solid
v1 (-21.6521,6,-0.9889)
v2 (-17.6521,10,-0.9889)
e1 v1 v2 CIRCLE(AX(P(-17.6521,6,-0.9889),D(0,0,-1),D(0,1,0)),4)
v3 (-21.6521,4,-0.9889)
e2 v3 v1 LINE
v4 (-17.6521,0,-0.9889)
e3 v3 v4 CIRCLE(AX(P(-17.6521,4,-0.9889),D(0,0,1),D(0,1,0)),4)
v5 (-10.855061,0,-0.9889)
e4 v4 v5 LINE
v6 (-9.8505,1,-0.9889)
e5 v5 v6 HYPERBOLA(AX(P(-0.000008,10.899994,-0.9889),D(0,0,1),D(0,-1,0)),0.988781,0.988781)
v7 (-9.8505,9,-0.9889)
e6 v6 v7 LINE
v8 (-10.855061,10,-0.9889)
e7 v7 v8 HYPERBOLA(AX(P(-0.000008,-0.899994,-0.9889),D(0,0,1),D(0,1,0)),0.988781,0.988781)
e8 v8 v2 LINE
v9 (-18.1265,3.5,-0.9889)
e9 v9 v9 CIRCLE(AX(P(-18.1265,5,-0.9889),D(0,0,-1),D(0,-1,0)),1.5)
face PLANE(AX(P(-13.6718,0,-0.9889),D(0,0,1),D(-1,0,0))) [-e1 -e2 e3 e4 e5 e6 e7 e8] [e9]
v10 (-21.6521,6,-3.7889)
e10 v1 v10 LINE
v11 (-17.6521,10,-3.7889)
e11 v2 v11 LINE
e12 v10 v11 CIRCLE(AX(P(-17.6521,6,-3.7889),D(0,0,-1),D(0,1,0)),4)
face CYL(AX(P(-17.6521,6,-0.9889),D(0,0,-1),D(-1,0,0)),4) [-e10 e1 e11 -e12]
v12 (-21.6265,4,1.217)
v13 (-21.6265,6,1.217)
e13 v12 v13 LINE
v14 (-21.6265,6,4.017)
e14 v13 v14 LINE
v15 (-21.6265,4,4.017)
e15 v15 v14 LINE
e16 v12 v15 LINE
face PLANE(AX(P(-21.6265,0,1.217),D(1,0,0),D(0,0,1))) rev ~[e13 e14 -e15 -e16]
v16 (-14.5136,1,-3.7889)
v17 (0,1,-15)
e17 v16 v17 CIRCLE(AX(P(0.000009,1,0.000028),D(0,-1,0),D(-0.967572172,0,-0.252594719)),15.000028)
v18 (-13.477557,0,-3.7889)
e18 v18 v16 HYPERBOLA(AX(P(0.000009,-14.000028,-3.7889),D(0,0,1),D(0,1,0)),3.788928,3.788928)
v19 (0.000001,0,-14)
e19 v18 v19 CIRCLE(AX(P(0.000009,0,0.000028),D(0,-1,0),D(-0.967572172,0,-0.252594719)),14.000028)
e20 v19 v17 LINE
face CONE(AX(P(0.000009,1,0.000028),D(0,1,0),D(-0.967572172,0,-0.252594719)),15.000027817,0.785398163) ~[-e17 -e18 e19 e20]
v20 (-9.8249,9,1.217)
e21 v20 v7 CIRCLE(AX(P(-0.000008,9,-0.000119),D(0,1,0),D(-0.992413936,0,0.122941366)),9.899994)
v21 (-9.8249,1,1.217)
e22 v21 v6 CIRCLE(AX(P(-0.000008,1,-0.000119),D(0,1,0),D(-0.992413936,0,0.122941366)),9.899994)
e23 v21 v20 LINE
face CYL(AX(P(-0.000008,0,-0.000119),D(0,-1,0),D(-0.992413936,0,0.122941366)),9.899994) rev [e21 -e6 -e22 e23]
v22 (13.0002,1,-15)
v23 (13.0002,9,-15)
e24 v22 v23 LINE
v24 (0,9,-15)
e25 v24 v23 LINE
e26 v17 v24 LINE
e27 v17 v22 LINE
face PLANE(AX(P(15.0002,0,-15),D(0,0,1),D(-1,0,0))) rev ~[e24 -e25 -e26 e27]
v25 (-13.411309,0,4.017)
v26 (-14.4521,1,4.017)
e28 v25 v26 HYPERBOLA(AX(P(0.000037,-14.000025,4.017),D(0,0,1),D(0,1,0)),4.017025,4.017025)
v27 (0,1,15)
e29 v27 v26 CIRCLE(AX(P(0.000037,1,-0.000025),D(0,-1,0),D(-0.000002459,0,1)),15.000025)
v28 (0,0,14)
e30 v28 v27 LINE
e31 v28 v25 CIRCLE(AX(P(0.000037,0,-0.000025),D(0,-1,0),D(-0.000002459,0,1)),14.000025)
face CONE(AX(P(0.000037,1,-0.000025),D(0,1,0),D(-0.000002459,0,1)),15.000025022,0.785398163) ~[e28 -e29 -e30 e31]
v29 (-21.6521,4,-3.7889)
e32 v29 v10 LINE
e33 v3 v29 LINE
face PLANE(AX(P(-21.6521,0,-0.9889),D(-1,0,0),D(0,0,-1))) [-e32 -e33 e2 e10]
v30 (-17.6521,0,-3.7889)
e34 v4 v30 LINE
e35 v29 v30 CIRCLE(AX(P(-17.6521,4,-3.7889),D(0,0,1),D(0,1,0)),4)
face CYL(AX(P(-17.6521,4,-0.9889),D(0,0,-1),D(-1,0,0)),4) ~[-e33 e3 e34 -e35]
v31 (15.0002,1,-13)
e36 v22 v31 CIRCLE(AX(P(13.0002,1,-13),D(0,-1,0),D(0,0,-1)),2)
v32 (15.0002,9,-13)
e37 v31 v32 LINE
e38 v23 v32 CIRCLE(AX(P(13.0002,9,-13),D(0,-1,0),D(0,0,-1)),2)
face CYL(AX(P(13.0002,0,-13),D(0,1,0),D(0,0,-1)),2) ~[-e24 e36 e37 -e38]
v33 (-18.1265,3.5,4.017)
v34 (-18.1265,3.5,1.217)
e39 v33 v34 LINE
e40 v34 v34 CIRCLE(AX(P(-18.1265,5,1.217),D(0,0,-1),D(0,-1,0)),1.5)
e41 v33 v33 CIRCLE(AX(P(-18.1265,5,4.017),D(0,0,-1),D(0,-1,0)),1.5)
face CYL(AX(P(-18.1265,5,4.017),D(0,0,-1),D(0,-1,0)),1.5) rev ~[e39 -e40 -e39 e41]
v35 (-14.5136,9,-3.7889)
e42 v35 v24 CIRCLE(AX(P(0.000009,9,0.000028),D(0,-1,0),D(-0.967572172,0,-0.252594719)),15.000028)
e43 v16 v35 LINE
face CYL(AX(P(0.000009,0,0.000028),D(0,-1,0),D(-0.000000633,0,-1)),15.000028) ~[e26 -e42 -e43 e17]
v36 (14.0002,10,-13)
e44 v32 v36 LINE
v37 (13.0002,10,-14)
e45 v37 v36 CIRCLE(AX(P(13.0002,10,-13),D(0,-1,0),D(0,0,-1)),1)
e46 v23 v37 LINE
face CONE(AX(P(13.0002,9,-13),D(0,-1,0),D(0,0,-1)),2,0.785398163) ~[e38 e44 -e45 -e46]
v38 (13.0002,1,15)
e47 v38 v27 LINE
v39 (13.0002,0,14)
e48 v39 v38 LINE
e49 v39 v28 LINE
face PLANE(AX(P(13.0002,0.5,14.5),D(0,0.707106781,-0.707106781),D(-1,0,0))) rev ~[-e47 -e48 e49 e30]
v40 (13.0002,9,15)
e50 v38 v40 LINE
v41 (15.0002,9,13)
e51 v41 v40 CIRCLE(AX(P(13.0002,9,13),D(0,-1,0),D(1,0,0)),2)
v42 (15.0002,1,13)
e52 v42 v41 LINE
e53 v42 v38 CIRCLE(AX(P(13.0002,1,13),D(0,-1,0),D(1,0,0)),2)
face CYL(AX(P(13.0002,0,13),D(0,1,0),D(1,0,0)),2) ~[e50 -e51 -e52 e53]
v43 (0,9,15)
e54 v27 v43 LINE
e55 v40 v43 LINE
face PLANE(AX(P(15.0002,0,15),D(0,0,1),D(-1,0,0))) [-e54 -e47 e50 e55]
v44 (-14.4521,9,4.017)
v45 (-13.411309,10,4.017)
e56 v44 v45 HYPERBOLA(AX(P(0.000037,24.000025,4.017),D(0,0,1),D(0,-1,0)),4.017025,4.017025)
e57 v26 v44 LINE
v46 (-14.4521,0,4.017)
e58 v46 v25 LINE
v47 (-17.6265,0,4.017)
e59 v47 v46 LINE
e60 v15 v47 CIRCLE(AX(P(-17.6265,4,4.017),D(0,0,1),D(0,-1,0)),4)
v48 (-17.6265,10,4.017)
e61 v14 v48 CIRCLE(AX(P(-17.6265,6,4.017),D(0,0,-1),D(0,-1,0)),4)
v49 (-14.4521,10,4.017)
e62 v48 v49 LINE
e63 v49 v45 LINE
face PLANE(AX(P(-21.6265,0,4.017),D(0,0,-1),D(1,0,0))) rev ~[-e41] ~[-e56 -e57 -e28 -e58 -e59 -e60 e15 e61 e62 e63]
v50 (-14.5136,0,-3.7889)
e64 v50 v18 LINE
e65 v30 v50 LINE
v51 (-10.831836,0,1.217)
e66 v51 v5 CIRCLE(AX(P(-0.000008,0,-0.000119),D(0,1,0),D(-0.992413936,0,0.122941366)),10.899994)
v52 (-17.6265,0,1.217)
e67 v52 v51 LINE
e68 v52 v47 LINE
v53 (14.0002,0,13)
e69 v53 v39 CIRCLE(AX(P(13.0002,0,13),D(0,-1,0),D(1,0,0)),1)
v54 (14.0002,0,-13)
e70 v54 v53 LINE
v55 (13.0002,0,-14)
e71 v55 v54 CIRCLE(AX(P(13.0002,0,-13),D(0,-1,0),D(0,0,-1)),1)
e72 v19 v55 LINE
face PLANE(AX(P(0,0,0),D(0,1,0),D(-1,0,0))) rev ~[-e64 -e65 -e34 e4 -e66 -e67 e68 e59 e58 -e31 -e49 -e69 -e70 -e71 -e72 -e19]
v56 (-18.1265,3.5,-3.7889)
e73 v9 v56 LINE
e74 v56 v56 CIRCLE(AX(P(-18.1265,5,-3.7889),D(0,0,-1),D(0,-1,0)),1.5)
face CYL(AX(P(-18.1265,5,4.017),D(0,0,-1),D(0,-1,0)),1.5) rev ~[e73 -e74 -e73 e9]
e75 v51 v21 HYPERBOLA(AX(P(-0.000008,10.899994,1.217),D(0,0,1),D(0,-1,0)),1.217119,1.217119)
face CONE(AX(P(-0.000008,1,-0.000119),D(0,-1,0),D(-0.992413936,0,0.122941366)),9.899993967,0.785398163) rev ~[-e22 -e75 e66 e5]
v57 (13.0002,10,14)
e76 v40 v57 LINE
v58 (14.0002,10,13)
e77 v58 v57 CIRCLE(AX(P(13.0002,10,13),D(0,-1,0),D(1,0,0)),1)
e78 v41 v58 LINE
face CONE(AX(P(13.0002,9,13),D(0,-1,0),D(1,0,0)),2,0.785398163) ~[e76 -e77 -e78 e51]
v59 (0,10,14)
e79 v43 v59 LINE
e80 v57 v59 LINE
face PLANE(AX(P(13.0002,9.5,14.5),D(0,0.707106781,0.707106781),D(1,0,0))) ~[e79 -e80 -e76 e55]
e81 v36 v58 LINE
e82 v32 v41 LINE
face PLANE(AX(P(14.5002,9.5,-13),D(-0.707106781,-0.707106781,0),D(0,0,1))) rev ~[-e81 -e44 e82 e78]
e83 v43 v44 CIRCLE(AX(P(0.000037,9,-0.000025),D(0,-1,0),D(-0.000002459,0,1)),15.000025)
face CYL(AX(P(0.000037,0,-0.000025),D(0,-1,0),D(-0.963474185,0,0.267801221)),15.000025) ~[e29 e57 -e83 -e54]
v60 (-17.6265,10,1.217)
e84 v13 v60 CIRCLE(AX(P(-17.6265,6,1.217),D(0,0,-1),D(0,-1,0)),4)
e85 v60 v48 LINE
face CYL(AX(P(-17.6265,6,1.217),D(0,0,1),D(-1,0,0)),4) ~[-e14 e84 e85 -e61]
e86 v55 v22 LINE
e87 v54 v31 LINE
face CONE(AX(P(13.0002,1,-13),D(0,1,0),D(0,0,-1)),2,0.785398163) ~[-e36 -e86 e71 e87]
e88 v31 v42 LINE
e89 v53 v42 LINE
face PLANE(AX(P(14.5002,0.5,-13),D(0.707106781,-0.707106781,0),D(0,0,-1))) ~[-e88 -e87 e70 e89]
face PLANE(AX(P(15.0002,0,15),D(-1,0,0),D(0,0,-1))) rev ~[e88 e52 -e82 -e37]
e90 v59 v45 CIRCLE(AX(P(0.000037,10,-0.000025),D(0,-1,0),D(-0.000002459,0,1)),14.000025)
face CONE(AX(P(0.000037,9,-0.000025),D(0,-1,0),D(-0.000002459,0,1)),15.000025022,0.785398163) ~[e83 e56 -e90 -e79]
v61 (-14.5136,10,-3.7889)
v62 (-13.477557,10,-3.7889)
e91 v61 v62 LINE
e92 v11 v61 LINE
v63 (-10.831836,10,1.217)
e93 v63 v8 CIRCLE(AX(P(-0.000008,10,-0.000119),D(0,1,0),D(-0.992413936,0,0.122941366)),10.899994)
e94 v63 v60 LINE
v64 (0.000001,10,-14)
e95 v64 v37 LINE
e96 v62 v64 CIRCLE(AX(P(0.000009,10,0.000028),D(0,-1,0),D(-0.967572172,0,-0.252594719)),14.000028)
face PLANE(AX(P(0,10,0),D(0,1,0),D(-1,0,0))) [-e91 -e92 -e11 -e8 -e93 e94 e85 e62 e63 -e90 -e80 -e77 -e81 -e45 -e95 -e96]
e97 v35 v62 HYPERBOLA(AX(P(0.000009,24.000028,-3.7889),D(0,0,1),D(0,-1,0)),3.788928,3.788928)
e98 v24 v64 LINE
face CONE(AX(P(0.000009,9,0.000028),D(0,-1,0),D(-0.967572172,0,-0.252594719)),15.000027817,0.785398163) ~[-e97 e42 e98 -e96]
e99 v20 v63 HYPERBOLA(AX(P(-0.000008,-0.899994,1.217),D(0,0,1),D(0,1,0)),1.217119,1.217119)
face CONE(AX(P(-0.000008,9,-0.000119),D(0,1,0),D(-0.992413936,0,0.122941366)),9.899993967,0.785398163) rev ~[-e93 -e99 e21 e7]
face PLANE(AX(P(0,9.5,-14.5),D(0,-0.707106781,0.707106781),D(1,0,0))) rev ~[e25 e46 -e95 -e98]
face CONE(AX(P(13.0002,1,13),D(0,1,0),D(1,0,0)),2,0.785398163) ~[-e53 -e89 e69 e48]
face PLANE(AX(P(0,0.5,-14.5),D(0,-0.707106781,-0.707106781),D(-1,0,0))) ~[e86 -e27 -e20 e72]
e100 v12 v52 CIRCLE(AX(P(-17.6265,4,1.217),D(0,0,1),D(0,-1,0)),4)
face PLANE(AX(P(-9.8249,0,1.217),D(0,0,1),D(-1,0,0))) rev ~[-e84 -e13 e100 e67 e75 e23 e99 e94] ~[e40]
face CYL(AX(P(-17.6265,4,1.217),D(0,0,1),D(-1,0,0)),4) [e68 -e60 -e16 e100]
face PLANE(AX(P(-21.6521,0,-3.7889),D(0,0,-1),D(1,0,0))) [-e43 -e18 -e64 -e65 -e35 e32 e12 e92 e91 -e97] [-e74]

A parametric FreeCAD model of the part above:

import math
import FreeCAD as App
import Part
import Sketcher

V = App.Vector
Q = App.Units.Quantity


def edges_at(feature, points):
    """Names of the edges that pass closest to the given points."""
    edges = feature.Shape.Edges
    near = lambda p: min(range(len(edges)), key=lambda i: edges[i].distToShape(Part.Vertex(*p))[0])
    return sorted({f"Edge{near(p) + 1}" for p in points})

doc = App.newDocument("Part")
body = doc.addObject("PartDesign::Body", "Body")

# Sketch on XZ plane
sketch1 = body.newObject("Sketcher::SketchObject", "Sketch")
sketch1.AttachmentSupport = (doc.getObject("XZ_Plane"), [""])
sketch1.MapMode = "FlatFace"
sketch1.addGeometry([
    Part.ArcOfCircle(Part.Circle(V(0, 0, 0), V(0, 0, 1), 9.9), math.radians(-174), math.radians(173)),  # 0
    Part.LineSegment(V(-9.8, 1.2, 0), V(-21.6, 1.2, 0)),  # 1
    Part.LineSegment(V(-21.6, 1.2, 0), V(-21.6, 4, 0)),  # 2
    Part.LineSegment(V(-21.6, 4, 0), V(-14.5, 4, 0)),  # 3
    Part.ArcOfCircle(Part.Circle(V(0, 0, 0), V(0, 0, 1), 15), math.radians(90), math.radians(164)),  # 4
    Part.LineSegment(V(0, 15, 0), V(15, 15, 0)),  # 5
    Part.LineSegment(V(15, 15, 0), V(15, -15, 0)),  # 6
    Part.LineSegment(V(15, -15, 0), V(0, -15, 0)),  # 7
    Part.ArcOfCircle(Part.Circle(V(0, 0, 0), V(0, 0, 1), 15), math.radians(-165), math.radians(-90)),  # 8
    Part.LineSegment(V(-14.5, -3.8, 0), V(-21.7, -3.8, 0)),  # 9
    Part.LineSegment(V(-21.7, -3.8, 0), V(-21.7, -1, 0)),  # 10
    Part.LineSegment(V(-21.7, -1, 0), V(-9.9, -1, 0)),  # 11
], False)
sketch1.addConstraint([
    Sketcher.Constraint("Coincident", 0, 2, 1, 1),
    Sketcher.Constraint("Coincident", 1, 2, 2, 1),
    Sketcher.Constraint("Coincident", 2, 2, 3, 1),
    Sketcher.Constraint("Coincident", 3, 2, 4, 2),
    Sketcher.Constraint("Tangent", 4, 1, 5, 1),
    Sketcher.Constraint("Coincident", 5, 2, 6, 1),
    Sketcher.Constraint("Coincident", 6, 2, 7, 1),
    Sketcher.Constraint("Tangent", 7, 2, 8, 2),
    Sketcher.Constraint("Coincident", 8, 1, 9, 1),
    Sketcher.Constraint("Coincident", 9, 2, 10, 1),
    Sketcher.Constraint("Coincident", 10, 2, 11, 1),
    Sketcher.Constraint("Coincident", 11, 2, 0, 1),
    Sketcher.Constraint("Horizontal", 1),
    Sketcher.Constraint("Vertical", 2),
    Sketcher.Constraint("Horizontal", 3),
    Sketcher.Constraint("Horizontal", 5),
    Sketcher.Constraint("Vertical", 6),
    Sketcher.Constraint("Horizontal", 7),
    Sketcher.Constraint("Horizontal", 9),
    Sketcher.Constraint("Vertical", 10),
    Sketcher.Constraint("Horizontal", 11),
    Sketcher.Constraint("Coincident", 0, 3, -1, 1),
    Sketcher.Constraint("Coincident", 4, 3, -1, 1),
    Sketcher.Constraint("Coincident", 8, 3, -1, 1),
    Sketcher.Constraint("Equal", 4, 8),
    Sketcher.Constraint("Equal", 1, 11),
    Sketcher.Constraint("Equal", 2, 10),
    Sketcher.Constraint("Radius", 4, Q("15 mm")),
    Sketcher.Constraint("Radius", 0, Q("9.9 mm")),
    Sketcher.Constraint("DistanceY", 2, 1, 2, 2, Q("2.8 mm")),
    Sketcher.Constraint("DistanceX", 9, 2, 3, 2, Q("7.2 mm")),
    Sketcher.Constraint("DistanceX", 1, 2, 1, 1, Q("11.8016 mm")),
    Sketcher.Constraint("DistanceX", 3, 1, 3, 2, Q("7.1744 mm")),
    Sketcher.Constraint("DistanceX", 5, 1, 5, 2, Q("15.0002 mm")),
])
pad1 = body.newObject("PartDesign::Pad", "Pad")
pad1.Profile = sketch1
pad1.Length = 10
pad1.Reversed = True
doc.recompute()

fillet = body.newObject("PartDesign::Fillet", "Fillet")
fillet.Base = (pad1, edges_at(pad1, [
    (-21.627, 10, 2.617),
    (-21.652, 10, -2.389),
    (-21.627, 0, 2.617),
    (-21.652, 0, -2.389),
]))
fillet.Radius = 4

# Sketch on XY plane
sketch2 = body.newObject("Sketcher::SketchObject", "Sketch001")
sketch2.AttachmentSupport = (doc.getObject("XY_Plane"), [""])
sketch2.MapMode = "FlatFace"
sketch2.AttachmentOffset = App.Placement(V(0, 0, 4.017), App.Rotation())
sketch2.addGeometry(Part.Circle(V(-18.1, 5, 0), V(0, 0, 1), 1.5), False)
sketch2.addConstraint([
    Sketcher.Constraint("Diameter", 0, Q("3 mm")),
    Sketcher.Constraint("DistanceY", -1, 1, 0, 3, Q("5 mm")),
    Sketcher.Constraint("DistanceX", 0, 3, -1, 1, Q("18.1265 mm")),
])
doc.recompute()
hole = body.newObject("PartDesign::Hole", "Hole")
hole.Profile = sketch2
hole.ThreadType = "None"
hole.Diameter = 3
hole.DepthType = "Dimension"
hole.Depth = 8
hole.DrillPoint = "Angled"
hole.DrillPointAngle = 118
doc.recompute()

fillet2 = body.newObject("PartDesign::Fillet", "Fillet001")
fillet2.Base = (hole, edges_at(hole, [(15, 5, 15), (15, 5, -15)]))
fillet2.Radius = 2
doc.recompute()

chamfer = body.newObject("PartDesign::Chamfer", "Chamfer")
chamfer.Base = (fillet2, edges_at(fillet2, [
    (9.899, 10, -0.115),
    (9.899, 0, -0.115),
    (6.5, 10, 15),
    (14.414, 10, 14.414),
    (15, 10, 0),
    (14.414, 10, -14.414),
    (6.5, 10, -15),
    (-9.17, 10, -11.871),
    (-9.076, 10, 11.943),
    (6.5, 0, 15),
    (14.414, 0, 14.414),
    (15, 0, 0),
    (14.414, 0, -14.414),
    (6.5, 0, -15),
    (-9.17, 0, -11.871),
    (-9.076, 0, 11.943),
]))
chamfer.Size = 1

doc.recompute()
